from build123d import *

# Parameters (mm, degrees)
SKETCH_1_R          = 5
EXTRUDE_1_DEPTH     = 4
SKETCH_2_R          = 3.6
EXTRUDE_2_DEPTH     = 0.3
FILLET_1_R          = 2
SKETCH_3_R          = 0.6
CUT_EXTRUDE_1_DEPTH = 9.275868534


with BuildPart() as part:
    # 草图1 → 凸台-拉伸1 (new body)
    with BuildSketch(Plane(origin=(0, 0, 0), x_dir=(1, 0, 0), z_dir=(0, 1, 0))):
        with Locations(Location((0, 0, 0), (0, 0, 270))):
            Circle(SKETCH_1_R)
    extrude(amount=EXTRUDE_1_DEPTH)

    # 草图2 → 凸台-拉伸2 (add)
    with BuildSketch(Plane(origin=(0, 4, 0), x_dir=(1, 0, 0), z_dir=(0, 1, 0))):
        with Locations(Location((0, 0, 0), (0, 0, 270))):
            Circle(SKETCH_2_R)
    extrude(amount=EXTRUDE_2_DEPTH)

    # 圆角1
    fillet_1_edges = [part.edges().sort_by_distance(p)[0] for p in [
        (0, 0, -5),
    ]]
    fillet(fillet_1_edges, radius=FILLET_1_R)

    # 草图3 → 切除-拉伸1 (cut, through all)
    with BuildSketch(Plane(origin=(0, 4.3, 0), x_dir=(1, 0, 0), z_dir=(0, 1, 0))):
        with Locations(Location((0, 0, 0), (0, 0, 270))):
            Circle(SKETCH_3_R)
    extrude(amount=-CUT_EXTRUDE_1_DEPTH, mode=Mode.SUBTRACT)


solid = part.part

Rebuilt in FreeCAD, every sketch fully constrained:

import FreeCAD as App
import Part
import Sketcher
Q = App.Units.Quantity


def edges_at(feature, points):
    """Names of the edges that pass closest to the given points."""
    edges = feature.Shape.Edges
    near = lambda p: min(range(len(edges)), key=lambda i: edges[i].distToShape(Part.Vertex(*p))[0])
    return sorted({f"Edge{near(p) + 1}" for p in points})

doc = App.newDocument("Part")
body = doc.addObject("PartDesign::Body", "Body")

sketch1 = body.newObject("Sketcher::SketchObject", "Sketch")
sketch1.AttachmentSupport = (doc.getObject("XZ_Plane"), [""])
sketch1.MapMode = "FlatFace"
sketch1.addGeometry(Part.Circle(App.Vector(0, 0, 0), App.Vector(0, 0, 1), 5), False)
sketch1.addConstraint(Sketcher.Constraint("Coincident", 0, 3, -1, 1))
sketch1.addConstraint(Sketcher.Constraint("Diameter", 0, Q("10 mm")))
pad1 = body.newObject("PartDesign::Pad", "Pad")
pad1.Profile = sketch1
pad1.Length = 4
pad1.Reversed = True

sketch2 = body.newObject("Sketcher::SketchObject", "Sketch001")
sketch2.AttachmentSupport = (doc.getObject("XZ_Plane"), [""])
sketch2.MapMode = "FlatFace"
sketch2.AttachmentOffset = App.Placement(App.Vector(0, 0, -4), App.Rotation())
sketch2.addGeometry(Part.Circle(App.Vector(0, 0, 0), App.Vector(0, 0, 1), 3.6), False)
sketch2.addConstraint(Sketcher.Constraint("Coincident", 0, 3, -1, 1))
sketch2.addConstraint(Sketcher.Constraint("Diameter", 0, Q("7.2 mm")))
pad2 = body.newObject("PartDesign::Pad", "Pad001")
pad2.Profile = sketch2
pad2.Length = 0.3
pad2.Reversed = True
doc.recompute()

fillet = body.newObject("PartDesign::Fillet", "Fillet")
fillet.Base = (pad2, edges_at(pad2, [(0, 0, -5)]))
fillet.Radius = 2

sketch3 = body.newObject("Sketcher::SketchObject", "Sketch002")
sketch3.AttachmentSupport = (doc.getObject("XZ_Plane"), [""])
sketch3.MapMode = "FlatFace"
sketch3.AttachmentOffset = App.Placement(App.Vector(0, 0, -4.3), App.Rotation())
sketch3.addGeometry(Part.Circle(App.Vector(0, 0, 0), App.Vector(0, 0, 1), 0.6), False)
sketch3.addConstraint(Sketcher.Constraint("Coincident", 0, 3, -1, 1))
sketch3.addConstraint(Sketcher.Constraint("Diameter", 0, Q("1.2 mm")))
pocket1 = body.newObject("PartDesign::Pocket", "Pocket")
pocket1.Profile = sketch3
pocket1.Type = "ThroughAll"
pocket1.Reversed = True

doc.recompute()
